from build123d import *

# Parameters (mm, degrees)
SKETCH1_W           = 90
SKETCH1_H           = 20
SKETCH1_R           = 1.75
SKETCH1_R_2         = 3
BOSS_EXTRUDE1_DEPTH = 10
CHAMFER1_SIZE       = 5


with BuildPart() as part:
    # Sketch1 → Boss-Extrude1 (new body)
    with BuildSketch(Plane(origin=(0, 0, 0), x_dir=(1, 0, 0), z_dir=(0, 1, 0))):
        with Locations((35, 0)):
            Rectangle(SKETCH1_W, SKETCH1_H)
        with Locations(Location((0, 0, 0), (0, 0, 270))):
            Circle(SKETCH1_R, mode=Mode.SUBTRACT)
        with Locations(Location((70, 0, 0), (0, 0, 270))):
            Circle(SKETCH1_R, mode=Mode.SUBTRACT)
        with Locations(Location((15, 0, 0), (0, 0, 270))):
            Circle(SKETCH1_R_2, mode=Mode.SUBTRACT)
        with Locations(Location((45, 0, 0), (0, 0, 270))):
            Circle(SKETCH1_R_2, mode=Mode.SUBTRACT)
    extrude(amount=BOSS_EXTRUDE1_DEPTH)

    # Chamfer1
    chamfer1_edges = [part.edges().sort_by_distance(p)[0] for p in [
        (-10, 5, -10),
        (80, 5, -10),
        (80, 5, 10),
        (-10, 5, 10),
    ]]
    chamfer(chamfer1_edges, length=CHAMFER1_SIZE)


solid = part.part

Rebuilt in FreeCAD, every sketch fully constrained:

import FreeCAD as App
import Part
import Sketcher
from FreeCAD import Vector


def edges_at(feature, points):
    """Names of the edges that pass closest to the given points."""
    edges = feature.Shape.Edges
    near = lambda p: min(range(len(edges)), key=lambda i: edges[i].distToShape(Part.Vertex(*p))[0])
    return sorted({f"Edge{near(p) + 1}" for p in points})


def add_polygon(sketch, points):
    """Adds a closed chain of lines whose ends are joined by coincident constraints."""
    first, n = sketch.GeometryCount, len(points)
    for a, b in zip(points, points[1:] + points[:1]):
        sketch.addGeometry(Part.LineSegment(App.Vector(*a, 0), App.Vector(*b, 0)), False)
    for i in range(n):
        sketch.addConstraint(Sketcher.Constraint("Coincident", first + i, 2, first + (i + 1) % n, 1))

doc = App.newDocument("Part")
body = doc.addObject("PartDesign::Body", "Body")

# Sketch on XZ plane
sketch1 = doc.addObject("Sketcher::SketchObject", "Sketch")
body.addObject(sketch1)
sketch1.AttachmentSupport = (doc.XZ_Plane, [""])
sketch1.MapMode = "FlatFace"
add_polygon(sketch1, [(-10, -10), (-10, 10), (80, 10), (80, -10)])  # lines 0-3
sketch1.addGeometry(Part.Circle(Vector(0, 0, 0), Vector(0, 0, 1), 1.8), False)  # 4
sketch1.addGeometry(Part.Circle(Vector(15, 0, 0), Vector(0, 0, 1), 3), False)  # 5
sketch1.addGeometry(Part.Circle(Vector(45, 0, 0), Vector(0, 0, 1), 3), False)  # 6
sketch1.addGeometry(Part.Circle(Vector(70, 0, 0), Vector(0, 0, 1), 1.8), False)  # 7
sketch1.addConstraint(Sketcher.Constraint("Vertical", 0))
sketch1.addConstraint(Sketcher.Constraint("Horizontal", 1))
sketch1.addConstraint(Sketcher.Constraint("Vertical", 2))
sketch1.addConstraint(Sketcher.Constraint("Horizontal", 3))
sketch1.addConstraint(Sketcher.Constraint("Coincident", 4, 3, -1, 1))
sketch1.addConstraint(Sketcher.Constraint("Equal", 5, 6))
sketch1.addConstraint(Sketcher.Constraint("Equal", 4, 7))
sketch1.addConstraint(Sketcher.Constraint("PointOnObject", 5, 3, -1))
sketch1.addConstraint(Sketcher.Constraint("PointOnObject", 6, 3, -1))
sketch1.addConstraint(Sketcher.Constraint("PointOnObject", 7, 3, -1))
sketch1.addConstraint(Sketcher.Constraint("Diameter", 5, 6.0))
sketch1.addConstraint(Sketcher.Constraint("Diameter", 4, 3.5))
sketch1.addConstraint(Sketcher.Constraint("DistanceX", 1, 1, 1, 2, 90.0))
sketch1.addConstraint(Sketcher.Constraint("DistanceY", 0, 1, 0, 2, 20.0))
sketch1.addConstraint(Sketcher.Constraint("DistanceX", -1, 1, 5, 3, 15.0))
sketch1.addConstraint(Sketcher.Constraint("DistanceX", -1, 1, 6, 3, 45.0))
sketch1.addConstraint(Sketcher.Constraint("DistanceX", -1, 1, 7, 3, 70.0))
sketch1.addConstraint(Sketcher.Constraint("DistanceX", 0, 2, -1, 1, 10.0))
sketch1.addConstraint(Sketcher.Constraint("DistanceY", -1, 1, 0, 2, 10.0))
pad1 = doc.addObject("PartDesign::Pad", "Pad")
body.addObject(pad1)
pad1.Profile = sketch1
pad1.Length = 10
pad1.Reversed = True
doc.recompute()

chamfer = doc.addObject("PartDesign::Chamfer", "Chamfer")
body.addObject(chamfer)
chamfer.Base = (pad1, edges_at(pad1, [
    (-10, 5, -10),
    (80, 5, -10),
    (80, 5, 10),
    (-10, 5, 10),
]))
chamfer.Size = 5

doc.recompute()
